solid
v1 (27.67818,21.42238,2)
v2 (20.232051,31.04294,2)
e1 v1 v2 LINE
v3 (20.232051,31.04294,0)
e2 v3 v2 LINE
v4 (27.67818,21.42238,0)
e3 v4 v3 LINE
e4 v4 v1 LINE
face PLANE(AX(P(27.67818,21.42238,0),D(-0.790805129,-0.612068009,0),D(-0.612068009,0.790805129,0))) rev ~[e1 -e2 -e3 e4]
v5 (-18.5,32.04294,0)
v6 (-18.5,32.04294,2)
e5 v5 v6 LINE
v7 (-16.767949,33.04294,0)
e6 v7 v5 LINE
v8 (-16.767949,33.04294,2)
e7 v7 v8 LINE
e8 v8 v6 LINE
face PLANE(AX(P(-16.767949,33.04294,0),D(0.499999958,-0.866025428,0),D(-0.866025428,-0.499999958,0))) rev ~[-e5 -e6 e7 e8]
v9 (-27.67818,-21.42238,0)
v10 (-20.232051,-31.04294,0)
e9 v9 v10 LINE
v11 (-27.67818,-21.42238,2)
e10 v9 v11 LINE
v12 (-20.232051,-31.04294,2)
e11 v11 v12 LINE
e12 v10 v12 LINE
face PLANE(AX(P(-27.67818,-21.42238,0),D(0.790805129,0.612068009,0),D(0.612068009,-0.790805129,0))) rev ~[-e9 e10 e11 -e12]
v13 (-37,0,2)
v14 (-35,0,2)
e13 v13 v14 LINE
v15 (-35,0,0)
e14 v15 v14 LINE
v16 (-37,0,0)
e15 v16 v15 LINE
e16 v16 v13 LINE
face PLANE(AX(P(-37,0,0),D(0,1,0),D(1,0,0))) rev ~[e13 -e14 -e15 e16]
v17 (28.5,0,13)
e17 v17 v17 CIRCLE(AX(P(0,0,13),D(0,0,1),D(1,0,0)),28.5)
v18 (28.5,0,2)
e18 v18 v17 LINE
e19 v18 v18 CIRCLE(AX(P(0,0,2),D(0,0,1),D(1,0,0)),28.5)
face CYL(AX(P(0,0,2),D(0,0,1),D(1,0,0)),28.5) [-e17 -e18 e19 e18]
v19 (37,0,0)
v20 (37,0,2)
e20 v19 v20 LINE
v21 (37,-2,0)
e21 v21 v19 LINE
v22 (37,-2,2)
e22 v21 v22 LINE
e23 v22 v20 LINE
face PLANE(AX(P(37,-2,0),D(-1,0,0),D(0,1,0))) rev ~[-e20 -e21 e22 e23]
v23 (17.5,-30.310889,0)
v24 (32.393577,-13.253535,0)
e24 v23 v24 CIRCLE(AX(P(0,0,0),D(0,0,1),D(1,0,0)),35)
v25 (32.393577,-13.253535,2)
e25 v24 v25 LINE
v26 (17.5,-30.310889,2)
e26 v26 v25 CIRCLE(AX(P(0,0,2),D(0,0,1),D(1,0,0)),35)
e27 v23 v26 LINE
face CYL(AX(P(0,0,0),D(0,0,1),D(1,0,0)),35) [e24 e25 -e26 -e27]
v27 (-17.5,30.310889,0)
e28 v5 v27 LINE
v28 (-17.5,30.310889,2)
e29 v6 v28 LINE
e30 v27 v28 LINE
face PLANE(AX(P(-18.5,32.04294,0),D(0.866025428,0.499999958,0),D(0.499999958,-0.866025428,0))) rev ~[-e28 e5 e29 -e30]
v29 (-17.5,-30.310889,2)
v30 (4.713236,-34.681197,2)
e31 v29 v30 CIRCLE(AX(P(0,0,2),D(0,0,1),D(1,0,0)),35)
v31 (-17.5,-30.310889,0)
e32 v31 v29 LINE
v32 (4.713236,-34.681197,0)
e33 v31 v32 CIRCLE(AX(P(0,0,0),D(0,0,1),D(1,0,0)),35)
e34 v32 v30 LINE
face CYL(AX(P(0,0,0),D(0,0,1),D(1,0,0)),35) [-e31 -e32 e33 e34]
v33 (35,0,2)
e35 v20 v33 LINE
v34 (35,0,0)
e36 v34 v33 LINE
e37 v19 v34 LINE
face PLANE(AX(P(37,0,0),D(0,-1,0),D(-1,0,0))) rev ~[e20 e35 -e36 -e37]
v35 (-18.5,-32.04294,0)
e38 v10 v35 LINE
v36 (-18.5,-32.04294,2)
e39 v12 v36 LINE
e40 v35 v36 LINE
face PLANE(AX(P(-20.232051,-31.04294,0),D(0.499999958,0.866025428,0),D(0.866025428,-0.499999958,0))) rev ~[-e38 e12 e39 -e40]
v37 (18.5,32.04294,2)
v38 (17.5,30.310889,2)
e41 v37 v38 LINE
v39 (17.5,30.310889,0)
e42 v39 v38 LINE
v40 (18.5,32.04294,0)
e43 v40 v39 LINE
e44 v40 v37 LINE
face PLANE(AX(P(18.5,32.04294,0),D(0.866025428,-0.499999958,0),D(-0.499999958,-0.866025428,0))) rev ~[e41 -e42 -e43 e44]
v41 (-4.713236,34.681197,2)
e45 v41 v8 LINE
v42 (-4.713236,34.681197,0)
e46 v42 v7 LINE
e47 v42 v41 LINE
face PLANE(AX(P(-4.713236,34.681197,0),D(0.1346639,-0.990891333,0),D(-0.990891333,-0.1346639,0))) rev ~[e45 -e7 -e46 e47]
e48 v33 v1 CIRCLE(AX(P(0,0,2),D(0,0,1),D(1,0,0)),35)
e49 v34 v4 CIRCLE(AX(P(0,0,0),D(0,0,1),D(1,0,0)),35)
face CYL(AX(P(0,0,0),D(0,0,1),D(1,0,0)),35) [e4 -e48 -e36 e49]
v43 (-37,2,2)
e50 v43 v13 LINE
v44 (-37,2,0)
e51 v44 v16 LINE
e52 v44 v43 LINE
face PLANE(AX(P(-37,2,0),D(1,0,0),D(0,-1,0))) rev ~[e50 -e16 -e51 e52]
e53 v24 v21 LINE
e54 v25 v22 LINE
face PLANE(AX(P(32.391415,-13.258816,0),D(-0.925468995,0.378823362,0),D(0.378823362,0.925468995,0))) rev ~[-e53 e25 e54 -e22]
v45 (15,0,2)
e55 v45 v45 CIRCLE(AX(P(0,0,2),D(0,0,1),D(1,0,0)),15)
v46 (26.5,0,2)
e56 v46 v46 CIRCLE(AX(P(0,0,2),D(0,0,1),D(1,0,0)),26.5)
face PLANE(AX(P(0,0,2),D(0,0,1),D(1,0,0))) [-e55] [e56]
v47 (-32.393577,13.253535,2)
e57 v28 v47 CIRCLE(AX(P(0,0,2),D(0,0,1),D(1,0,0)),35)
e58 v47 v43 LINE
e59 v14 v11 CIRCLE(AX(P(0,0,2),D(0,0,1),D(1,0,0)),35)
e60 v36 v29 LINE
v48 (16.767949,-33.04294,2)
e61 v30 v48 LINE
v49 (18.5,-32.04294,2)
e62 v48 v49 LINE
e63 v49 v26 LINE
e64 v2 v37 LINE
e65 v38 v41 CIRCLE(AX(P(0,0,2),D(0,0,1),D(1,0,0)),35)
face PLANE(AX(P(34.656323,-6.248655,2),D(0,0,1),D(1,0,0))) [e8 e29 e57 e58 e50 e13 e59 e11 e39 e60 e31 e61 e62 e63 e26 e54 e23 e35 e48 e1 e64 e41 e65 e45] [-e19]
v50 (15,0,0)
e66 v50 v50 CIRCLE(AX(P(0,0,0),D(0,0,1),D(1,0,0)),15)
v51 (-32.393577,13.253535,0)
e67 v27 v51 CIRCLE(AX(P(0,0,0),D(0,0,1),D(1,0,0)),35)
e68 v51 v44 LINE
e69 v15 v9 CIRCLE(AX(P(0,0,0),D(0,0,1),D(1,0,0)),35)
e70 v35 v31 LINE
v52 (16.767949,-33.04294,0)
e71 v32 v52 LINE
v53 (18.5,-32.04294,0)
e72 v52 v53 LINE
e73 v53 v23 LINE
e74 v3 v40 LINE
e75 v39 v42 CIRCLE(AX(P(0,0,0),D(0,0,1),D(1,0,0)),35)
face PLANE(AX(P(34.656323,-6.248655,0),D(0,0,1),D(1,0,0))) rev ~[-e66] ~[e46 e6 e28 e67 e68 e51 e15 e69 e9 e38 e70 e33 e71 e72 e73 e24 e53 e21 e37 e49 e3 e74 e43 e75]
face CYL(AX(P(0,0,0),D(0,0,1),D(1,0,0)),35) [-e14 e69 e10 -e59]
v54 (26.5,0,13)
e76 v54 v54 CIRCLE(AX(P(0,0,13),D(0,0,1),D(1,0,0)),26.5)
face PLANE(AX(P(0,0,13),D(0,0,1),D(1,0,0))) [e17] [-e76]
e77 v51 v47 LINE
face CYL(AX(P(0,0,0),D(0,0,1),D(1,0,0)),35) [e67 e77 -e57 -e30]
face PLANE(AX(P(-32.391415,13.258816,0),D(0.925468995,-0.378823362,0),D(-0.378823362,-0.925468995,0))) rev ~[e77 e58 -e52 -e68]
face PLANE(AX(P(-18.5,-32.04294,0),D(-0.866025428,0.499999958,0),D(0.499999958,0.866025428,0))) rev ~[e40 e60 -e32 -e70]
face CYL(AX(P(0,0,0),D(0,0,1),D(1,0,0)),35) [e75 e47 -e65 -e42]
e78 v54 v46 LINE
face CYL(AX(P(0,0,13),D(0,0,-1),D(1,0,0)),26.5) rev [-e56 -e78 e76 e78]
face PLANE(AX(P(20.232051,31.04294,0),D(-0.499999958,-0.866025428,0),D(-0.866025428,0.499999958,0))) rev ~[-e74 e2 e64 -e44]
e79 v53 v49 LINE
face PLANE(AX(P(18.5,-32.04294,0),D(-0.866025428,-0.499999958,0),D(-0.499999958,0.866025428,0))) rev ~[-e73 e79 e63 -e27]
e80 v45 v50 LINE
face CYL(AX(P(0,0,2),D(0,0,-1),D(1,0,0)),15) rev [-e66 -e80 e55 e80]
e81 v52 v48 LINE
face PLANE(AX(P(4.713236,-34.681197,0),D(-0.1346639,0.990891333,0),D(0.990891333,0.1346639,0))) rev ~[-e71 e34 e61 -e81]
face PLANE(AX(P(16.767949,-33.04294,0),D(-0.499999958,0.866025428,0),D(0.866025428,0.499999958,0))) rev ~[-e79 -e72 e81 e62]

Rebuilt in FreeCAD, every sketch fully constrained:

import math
import FreeCAD as App
import Part
import Sketcher
Q = App.Units.Quantity

doc = App.newDocument("Part")
params = doc.addObject("Spreadsheet::Sheet", "Params")
for row, (alias, value) in enumerate([
    ("sketch1_width", "20 mm"),
    ("sketch1_width2", "2 mm"),
    ("sketch1_height", "11 mm"),
    ("sketch1_width3", "6.5 mm"),
    ("revolution_angle", "360 deg"),
    ("sketch2_width", "2 mm"),
    ("pad1_length", "2 mm"),
], start=1):
    params.set(f"A{row}", alias)
    params.set(f"B{row}", "=" + value)
    params.setAlias(f"B{row}", alias)

body = doc.addObject("PartDesign::Body", "Body")

# Sketch on XZ plane
sketch1 = body.newObject("Sketcher::SketchObject", "Sketch")
sketch1.AttachmentSupport = (doc.getObject("XZ_Plane"), [""])
sketch1.MapMode = "FlatFace"
sketch1.addGeometry([
    Part.LineSegment(App.Vector(15, 2, 0), App.Vector(15, 0, 0)),  # 0
    Part.LineSegment(App.Vector(15, 0, 0), App.Vector(35, 0, 0)),  # 1
    Part.LineSegment(App.Vector(35, 0, 0), App.Vector(35, 2, 0)),  # 2
    Part.LineSegment(App.Vector(35, 2, 0), App.Vector(28.5, 2, 0)),  # 3
    Part.LineSegment(App.Vector(28.5, 2, 0), App.Vector(28.5, 13, 0)),  # 4
    Part.LineSegment(App.Vector(28.5, 13, 0), App.Vector(26.5, 13, 0)),  # 5
    Part.LineSegment(App.Vector(26.5, 13, 0), App.Vector(26.5, 2, 0)),  # 6
    Part.LineSegment(App.Vector(26.5, 2, 0), App.Vector(15, 2, 0)),  # 7
], False)
sketch1.addConstraint([
    Sketcher.Constraint("Coincident", 0, 2, 1, 1),
    Sketcher.Constraint("Coincident", 1, 2, 2, 1),
    Sketcher.Constraint("Coincident", 2, 2, 3, 1),
    Sketcher.Constraint("Coincident", 3, 2, 4, 1),
    Sketcher.Constraint("Coincident", 4, 2, 5, 1),
    Sketcher.Constraint("Coincident", 5, 2, 6, 1),
    Sketcher.Constraint("Coincident", 6, 2, 7, 1),
    Sketcher.Constraint("Coincident", 7, 2, 0, 1),
    Sketcher.Constraint("Vertical", 0),
    Sketcher.Constraint("Horizontal", 1),
    Sketcher.Constraint("Vertical", 2),
    Sketcher.Constraint("Horizontal", 3),
    Sketcher.Constraint("Vertical", 4),
    Sketcher.Constraint("Horizontal", 5),
    Sketcher.Constraint("Vertical", 6),
    Sketcher.Constraint("Horizontal", 7),
    Sketcher.Constraint("PointOnObject", 0, 2, -1),
    Sketcher.Constraint("Horizontal", 3, 2, 6, 2),
    Sketcher.Constraint("Equal", 5, 0),
    Sketcher.Constraint("DistanceX", 1, 1, 1, 2, Q("20 mm")),
    Sketcher.Constraint("DistanceX", 5, 2, 5, 1, Q("2 mm")),
    Sketcher.Constraint("DistanceY", 4, 1, 4, 2, Q("11 mm")),
    Sketcher.Constraint("DistanceX", 3, 2, 3, 1, Q("6.5 mm")),
    Sketcher.Constraint("DistanceX", -1, 1, 0, 2, Q("15 mm")),
])
sketch1.setExpression("Constraints[19]", "Params.sketch1_width")
sketch1.setExpression("Constraints[20]", "Params.sketch1_width2")
sketch1.setExpression("Constraints[21]", "Params.sketch1_height")
sketch1.setExpression("Constraints[22]", "Params.sketch1_width3")
revolution = body.newObject("PartDesign::Revolution", "Revolution")
revolution.Profile = sketch1
revolution.ReferenceAxis = (sketch1, ["V_Axis"])
revolution.setExpression("Angle", "Params.revolution_angle")

# Sketch on XY plane
sketch2 = body.newObject("Sketcher::SketchObject", "Sketch001")
sketch2.AttachmentSupport = (doc.getObject("XY_Plane"), [""])
sketch2.MapMode = "FlatFace"
sketch2.addGeometry([
    Part.LineSegment(App.Vector(37, 0, 0), App.Vector(35, 0, 0)),  # 0
    Part.ArcOfCircle(Part.Circle(App.Vector(0, 0, 0), App.Vector(0, 0, 1), 35), math.radians(-22), math.radians(0)),  # 1
    Part.LineSegment(App.Vector(32.4, -13.3, 0), App.Vector(37, -2, 0)),  # 2
    Part.LineSegment(App.Vector(37, -2, 0), App.Vector(37, 0, 0)),  # 3
    Part.LineSegment(App.Vector(18.5, -32, 0), App.Vector(17.5, -30.3, 0)),  # 4
    Part.ArcOfCircle(Part.Circle(App.Vector(0, 0, 0), App.Vector(0, 0, 1), 35), math.radians(-82), math.radians(-60)),  # 5
    Part.LineSegment(App.Vector(4.7, -34.7, 0), App.Vector(16.8, -33, 0)),  # 6
    Part.LineSegment(App.Vector(16.8, -33, 0), App.Vector(18.5, -32, 0)),  # 7
    Part.ArcOfCircle(Part.Circle(App.Vector(0, 0, 0), App.Vector(0, 0, 1), 35), math.radians(38), math.radians(60)),  # 8
    Part.LineSegment(App.Vector(27.7, 21.4, 0), App.Vector(20.2, 31, 0)),  # 9
    Part.LineSegment(App.Vector(20.2, 31, 0), App.Vector(18.5, 32, 0)),  # 10
    Part.LineSegment(App.Vector(18.5, 32, 0), App.Vector(17.5, 30.3, 0)),  # 11
    Part.ArcOfCircle(Part.Circle(App.Vector(0, 0, 0), App.Vector(0, 0, 1), 35), math.radians(98), math.radians(120)),  # 12
    Part.LineSegment(App.Vector(-4.7, 34.7, 0), App.Vector(-16.8, 33, 0)),  # 13
    Part.LineSegment(App.Vector(-16.8, 33, 0), App.Vector(-18.5, 32, 0)),  # 14
    Part.LineSegment(App.Vector(-18.5, 32, 0), App.Vector(-17.5, 30.3, 0)),  # 15
    Part.ArcOfCircle(Part.Circle(App.Vector(0, 0, 0), App.Vector(0, 0, 1), 35), math.radians(158), math.radians(180)),  # 16
    Part.LineSegment(App.Vector(-32.4, 13.3, 0), App.Vector(-37, 2, 0)),  # 17
    Part.LineSegment(App.Vector(-37, 2, 0), App.Vector(-37, 0, 0)),  # 18
    Part.LineSegment(App.Vector(-37, 0, 0), App.Vector(-35, 0, 0)),  # 19
    Part.LineSegment(App.Vector(-18.5, -32, 0), App.Vector(-17.5, -30.3, 0)),  # 20
    Part.ArcOfCircle(Part.Circle(App.Vector(0, 0, 0), App.Vector(0, 0, 1), 35), math.radians(-142), math.radians(-120)),  # 21
    Part.LineSegment(App.Vector(-27.7, -21.4, 0), App.Vector(-20.2, -31, 0)),  # 22
    Part.LineSegment(App.Vector(-20.2, -31, 0), App.Vector(-18.5, -32, 0)),  # 23
], False)
sketch2.addConstraint([
    Sketcher.Constraint("Coincident", 0, 2, 1, 2),
    Sketcher.Constraint("Tangent", 1, 1, 2, 1),
    Sketcher.Constraint("Coincident", 2, 2, 3, 1),
    Sketcher.Constraint("Coincident", 3, 2, 0, 1),
    Sketcher.Constraint("Coincident", 4, 2, 5, 2),
    Sketcher.Constraint("Tangent", 5, 1, 6, 1),
    Sketcher.Constraint("Coincident", 6, 2, 7, 1),
    Sketcher.Constraint("Coincident", 7, 2, 4, 1),
    Sketcher.Constraint("Tangent", 8, 1, 9, 1),
    Sketcher.Constraint("Coincident", 9, 2, 10, 1),
    Sketcher.Constraint("Coincident", 10, 2, 11, 1),
    Sketcher.Constraint("Coincident", 11, 2, 8, 2),
    Sketcher.Constraint("Tangent", 12, 1, 13, 1),
    Sketcher.Constraint("Coincident", 13, 2, 14, 1),
    Sketcher.Constraint("Coincident", 14, 2, 15, 1),
    Sketcher.Constraint("Coincident", 15, 2, 12, 2),
    Sketcher.Constraint("Tangent", 16, 1, 17, 1),
    Sketcher.Constraint("Coincident", 17, 2, 18, 1),
    Sketcher.Constraint("Coincident", 18, 2, 19, 1),
    Sketcher.Constraint("Coincident", 19, 2, 16, 2),
    Sketcher.Constraint("Coincident", 20, 2, 21, 2),
    Sketcher.Constraint("Tangent", 21, 1, 22, 1),
    Sketcher.Constraint("Coincident", 22, 2, 23, 1),
    Sketcher.Constraint("Coincident", 23, 2, 20, 1),
    Sketcher.Constraint("Horizontal", 0),
    Sketcher.Constraint("Vertical", 3),
    Sketcher.Constraint("Vertical", 18),
    Sketcher.Constraint("Horizontal", 19),
    Sketcher.Constraint("Coincident", 1, 3, -1, 1),
    Sketcher.Constraint("Coincident", 5, 3, -1, 1),
    Sketcher.Constraint("Coincident", 8, 3, -1, 1),
    Sketcher.Constraint("Coincident", 12, 3, -1, 1),
    Sketcher.Constraint("Coincident", 16, 3, -1, 1),
    Sketcher.Constraint("Coincident", 21, 3, -1, 1),
    Sketcher.Constraint("Equal", 1, 5),
    Sketcher.Constraint("Equal", 5, 12),
    Sketcher.Constraint("Equal", 12, 16),
    Sketcher.Constraint("Equal", 8, 21),
    Sketcher.Constraint("Symmetric", 6, 2, 13, 2, -1, 1),
    Sketcher.Constraint("Symmetric", 7, 2, 14, 2, -1, 1),
    Sketcher.Constraint("Symmetric", 2, 2, 17, 2, -1, 1),
    Sketcher.Constraint("Symmetric", 9, 2, 22, 2, -1, 1),
    Sketcher.Constraint("Symmetric", 10, 2, 23, 2, -1, 1),
    Sketcher.Constraint("Symmetric", 10, 2, 14, 2, -2),
    Sketcher.Constraint("Symmetric", 11, 2, 15, 2, -2),
    Sketcher.Constraint("PointOnObject", 0, 2, -1),
    Sketcher.Constraint("PointOnObject", 18, 2, -1),
    Sketcher.Constraint("Perpendicular", 4, 7),
    Sketcher.Constraint("Perpendicular", 10, 11),
    Sketcher.Constraint("Perpendicular", 14, 15),
    Sketcher.Constraint("Parallel", 11, 20),
    Sketcher.Constraint("Equal", 19, 3),
    Sketcher.Constraint("Equal", 2, 6),
    Sketcher.Constraint("Equal", 4, 7),
    Sketcher.Constraint("Equal", 6, 9),
    Sketcher.Constraint("Equal", 7, 10),
    Sketcher.Constraint("DistanceX", 0, 2, 0, 1, Q("2 mm")),
    Sketcher.Constraint("Angle", 4, Q("119.999997 deg")),
    Sketcher.Constraint("DistanceX", -1, 1, 0, 2, Q("35 mm")),
])
sketch2.setExpression("Constraints[56]", "Params.sketch2_width")
pad1 = body.newObject("PartDesign::Pad", "Pad")
pad1.Profile = sketch2
pad1.setExpression("Length", "Params.pad1_length")

doc.recompute()
